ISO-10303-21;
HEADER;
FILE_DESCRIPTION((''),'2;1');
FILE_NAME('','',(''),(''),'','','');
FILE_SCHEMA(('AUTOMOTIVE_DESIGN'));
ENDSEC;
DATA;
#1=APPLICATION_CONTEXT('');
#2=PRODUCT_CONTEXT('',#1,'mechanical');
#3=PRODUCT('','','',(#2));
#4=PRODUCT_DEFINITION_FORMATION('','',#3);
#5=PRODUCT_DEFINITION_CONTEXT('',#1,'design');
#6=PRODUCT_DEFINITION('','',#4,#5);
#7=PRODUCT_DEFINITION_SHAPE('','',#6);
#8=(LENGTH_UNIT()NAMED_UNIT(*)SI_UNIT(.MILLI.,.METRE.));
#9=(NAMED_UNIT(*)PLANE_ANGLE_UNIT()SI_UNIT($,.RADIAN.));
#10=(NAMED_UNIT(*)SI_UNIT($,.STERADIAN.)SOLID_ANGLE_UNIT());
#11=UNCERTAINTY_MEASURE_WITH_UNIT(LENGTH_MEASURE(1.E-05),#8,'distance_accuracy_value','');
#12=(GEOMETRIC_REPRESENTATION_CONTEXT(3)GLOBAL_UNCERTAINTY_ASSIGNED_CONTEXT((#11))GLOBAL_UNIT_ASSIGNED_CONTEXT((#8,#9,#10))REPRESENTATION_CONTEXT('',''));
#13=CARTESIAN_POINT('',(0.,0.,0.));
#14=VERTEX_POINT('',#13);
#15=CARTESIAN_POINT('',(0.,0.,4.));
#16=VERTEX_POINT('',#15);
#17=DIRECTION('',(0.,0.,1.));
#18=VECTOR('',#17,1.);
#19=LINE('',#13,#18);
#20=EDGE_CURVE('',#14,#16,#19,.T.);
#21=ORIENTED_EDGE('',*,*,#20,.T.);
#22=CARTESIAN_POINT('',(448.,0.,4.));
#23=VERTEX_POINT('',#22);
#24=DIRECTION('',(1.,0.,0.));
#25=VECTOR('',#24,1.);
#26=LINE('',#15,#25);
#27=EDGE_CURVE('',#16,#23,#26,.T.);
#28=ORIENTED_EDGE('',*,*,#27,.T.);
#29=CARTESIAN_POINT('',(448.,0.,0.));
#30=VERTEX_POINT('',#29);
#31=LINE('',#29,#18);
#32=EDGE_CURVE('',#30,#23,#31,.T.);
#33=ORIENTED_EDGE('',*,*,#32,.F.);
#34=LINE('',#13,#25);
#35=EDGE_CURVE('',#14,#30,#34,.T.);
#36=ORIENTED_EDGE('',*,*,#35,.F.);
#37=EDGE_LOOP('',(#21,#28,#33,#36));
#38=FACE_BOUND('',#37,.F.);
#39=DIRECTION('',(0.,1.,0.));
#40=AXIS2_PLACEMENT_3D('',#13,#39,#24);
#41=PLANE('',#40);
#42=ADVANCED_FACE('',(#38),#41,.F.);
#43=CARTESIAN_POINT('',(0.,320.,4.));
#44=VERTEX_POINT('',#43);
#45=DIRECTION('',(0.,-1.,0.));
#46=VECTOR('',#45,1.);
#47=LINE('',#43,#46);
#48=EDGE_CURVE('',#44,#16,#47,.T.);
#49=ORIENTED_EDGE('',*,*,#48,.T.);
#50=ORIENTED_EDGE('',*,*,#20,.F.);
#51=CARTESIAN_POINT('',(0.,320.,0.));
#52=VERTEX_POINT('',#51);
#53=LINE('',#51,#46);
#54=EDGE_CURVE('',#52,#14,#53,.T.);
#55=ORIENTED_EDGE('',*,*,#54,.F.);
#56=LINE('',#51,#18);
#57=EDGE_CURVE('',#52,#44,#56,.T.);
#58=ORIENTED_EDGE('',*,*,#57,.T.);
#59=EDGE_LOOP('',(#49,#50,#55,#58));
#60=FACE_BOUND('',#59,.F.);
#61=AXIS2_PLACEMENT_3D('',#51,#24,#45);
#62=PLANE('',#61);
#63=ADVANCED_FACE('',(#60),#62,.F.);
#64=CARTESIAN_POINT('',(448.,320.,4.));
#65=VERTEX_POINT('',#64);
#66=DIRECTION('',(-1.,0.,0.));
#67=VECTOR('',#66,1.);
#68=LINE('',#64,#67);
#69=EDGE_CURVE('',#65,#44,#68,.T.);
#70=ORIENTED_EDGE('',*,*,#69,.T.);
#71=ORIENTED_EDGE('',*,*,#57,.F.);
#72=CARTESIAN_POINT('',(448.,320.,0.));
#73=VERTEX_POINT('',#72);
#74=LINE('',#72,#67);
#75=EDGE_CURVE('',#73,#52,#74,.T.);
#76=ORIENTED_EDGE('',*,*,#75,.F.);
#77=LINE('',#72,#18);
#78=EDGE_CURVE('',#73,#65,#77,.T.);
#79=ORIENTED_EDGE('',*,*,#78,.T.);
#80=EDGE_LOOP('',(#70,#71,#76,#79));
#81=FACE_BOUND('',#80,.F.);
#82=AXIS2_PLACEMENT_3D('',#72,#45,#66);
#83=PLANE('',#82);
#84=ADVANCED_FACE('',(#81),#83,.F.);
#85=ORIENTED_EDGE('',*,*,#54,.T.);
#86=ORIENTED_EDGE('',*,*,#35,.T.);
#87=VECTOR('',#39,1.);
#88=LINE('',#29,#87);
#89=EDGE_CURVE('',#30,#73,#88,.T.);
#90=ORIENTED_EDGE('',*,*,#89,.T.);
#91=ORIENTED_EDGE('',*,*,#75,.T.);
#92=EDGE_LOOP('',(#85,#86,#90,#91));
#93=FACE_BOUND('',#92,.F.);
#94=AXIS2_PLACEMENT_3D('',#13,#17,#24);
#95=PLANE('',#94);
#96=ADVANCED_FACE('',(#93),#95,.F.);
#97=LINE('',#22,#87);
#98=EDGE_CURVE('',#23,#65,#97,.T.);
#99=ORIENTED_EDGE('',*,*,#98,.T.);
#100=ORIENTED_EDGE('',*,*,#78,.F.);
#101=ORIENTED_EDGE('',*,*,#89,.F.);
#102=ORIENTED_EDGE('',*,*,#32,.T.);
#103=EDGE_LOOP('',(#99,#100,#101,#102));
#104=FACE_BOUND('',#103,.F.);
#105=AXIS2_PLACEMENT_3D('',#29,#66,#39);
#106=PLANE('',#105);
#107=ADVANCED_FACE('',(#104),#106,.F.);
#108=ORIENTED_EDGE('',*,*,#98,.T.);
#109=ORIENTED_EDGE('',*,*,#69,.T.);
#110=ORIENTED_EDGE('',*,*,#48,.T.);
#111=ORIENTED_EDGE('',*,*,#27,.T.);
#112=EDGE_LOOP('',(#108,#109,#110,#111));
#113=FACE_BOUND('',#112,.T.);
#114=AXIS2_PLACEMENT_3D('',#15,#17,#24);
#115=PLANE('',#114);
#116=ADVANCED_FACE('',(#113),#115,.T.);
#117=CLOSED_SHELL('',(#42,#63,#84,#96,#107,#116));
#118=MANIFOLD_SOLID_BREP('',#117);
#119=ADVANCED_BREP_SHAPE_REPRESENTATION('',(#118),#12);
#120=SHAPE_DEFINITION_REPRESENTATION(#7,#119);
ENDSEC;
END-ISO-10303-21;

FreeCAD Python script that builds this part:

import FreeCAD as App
import Part
import Sketcher

V = App.Vector

doc = App.newDocument("Part")
body = doc.addObject("PartDesign::Body", "Body")

# Sketch on XY plane
sketch1 = doc.addObject("Sketcher::SketchObject", "Sketch")
body.addObject(sketch1)
sketch1.AttachmentSupport = (doc.XY_Plane, [""])
sketch1.MapMode = "FlatFace"
sketch1.addGeometry(Part.LineSegment(V(0, 320, 0), V(0, 0, 0)), False)
sketch1.addGeometry(Part.LineSegment(V(0, 0, 0), V(448, 0, 0)), False)
sketch1.addGeometry(Part.LineSegment(V(448, 0, 0), V(448, 320, 0)), False)
sketch1.addGeometry(Part.LineSegment(V(448, 320, 0), V(0, 320, 0)), False)
sketch1.addConstraint(Sketcher.Constraint("Coincident", 0, 2, 1, 1))
sketch1.addConstraint(Sketcher.Constraint("Coincident", 1, 2, 2, 1))
sketch1.addConstraint(Sketcher.Constraint("Coincident", 2, 2, 3, 1))
sketch1.addConstraint(Sketcher.Constraint("Coincident", 3, 2, 0, 1))
sketch1.addConstraint(Sketcher.Constraint("Vertical", 0))
sketch1.addConstraint(Sketcher.Constraint("Horizontal", 1))
sketch1.addConstraint(Sketcher.Constraint("Vertical", 2))
sketch1.addConstraint(Sketcher.Constraint("Horizontal", 3))
sketch1.addConstraint(Sketcher.Constraint("Coincident", 0, 2, -1, 1))
sketch1.addConstraint(Sketcher.Constraint("DistanceX", 1, 1, 1, 2, 448.0))
sketch1.addConstraint(Sketcher.Constraint("DistanceY", 0, 2, 0, 1, 320.0))
pad1 = doc.addObject("PartDesign::Pad", "Pad")
body.addObject(pad1)
pad1.Profile = sketch1
pad1.Length = 4

doc.recompute()
